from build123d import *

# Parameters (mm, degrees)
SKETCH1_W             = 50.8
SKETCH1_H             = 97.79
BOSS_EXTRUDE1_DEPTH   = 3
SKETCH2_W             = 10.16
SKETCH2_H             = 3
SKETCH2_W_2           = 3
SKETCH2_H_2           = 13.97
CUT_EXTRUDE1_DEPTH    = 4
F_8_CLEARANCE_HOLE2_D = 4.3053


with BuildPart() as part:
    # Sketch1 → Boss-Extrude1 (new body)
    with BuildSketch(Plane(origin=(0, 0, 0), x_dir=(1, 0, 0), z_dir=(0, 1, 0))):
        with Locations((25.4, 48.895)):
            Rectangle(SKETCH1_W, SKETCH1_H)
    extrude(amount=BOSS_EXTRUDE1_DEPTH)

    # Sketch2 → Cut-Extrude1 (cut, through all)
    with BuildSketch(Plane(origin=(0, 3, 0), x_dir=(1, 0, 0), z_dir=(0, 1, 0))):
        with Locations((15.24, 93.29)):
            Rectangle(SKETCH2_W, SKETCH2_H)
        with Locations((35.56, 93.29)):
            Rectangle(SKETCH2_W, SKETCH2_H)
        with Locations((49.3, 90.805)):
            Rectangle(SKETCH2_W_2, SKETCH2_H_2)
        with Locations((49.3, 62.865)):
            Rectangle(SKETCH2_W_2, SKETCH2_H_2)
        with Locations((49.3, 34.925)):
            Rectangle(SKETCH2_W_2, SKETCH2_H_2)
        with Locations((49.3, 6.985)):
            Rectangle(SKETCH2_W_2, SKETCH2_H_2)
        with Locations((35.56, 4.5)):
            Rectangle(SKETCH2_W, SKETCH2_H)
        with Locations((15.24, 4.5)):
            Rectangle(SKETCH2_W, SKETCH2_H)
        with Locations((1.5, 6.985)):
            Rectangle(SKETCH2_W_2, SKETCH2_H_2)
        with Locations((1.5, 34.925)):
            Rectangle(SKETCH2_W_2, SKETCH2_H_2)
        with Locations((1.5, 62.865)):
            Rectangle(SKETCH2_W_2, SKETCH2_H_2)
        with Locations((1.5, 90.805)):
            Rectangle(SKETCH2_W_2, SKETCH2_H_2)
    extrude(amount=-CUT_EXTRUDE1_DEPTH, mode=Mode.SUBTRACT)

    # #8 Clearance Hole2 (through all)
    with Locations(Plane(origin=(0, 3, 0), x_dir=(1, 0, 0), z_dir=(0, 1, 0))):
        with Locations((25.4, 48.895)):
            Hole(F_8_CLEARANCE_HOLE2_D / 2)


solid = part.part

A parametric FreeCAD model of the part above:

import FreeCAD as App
import Part
import Sketcher
from FreeCAD import Vector
Q = App.Units.Quantity


def add_polygon(sketch, points):
    """Adds a closed chain of lines whose ends are joined by coincident constraints."""
    first, n = sketch.GeometryCount, len(points)
    for a, b in zip(points, points[1:] + points[:1]):
        sketch.addGeometry(Part.LineSegment(App.Vector(*a, 0), App.Vector(*b, 0)), False)
    for i in range(n):
        sketch.addConstraint(Sketcher.Constraint("Coincident", first + i, 2, first + (i + 1) % n, 1))

doc = App.newDocument("Part")
body = doc.addObject("PartDesign::Body", "Body")

# Sketch on XZ plane
sketch1 = body.newObject("Sketcher::SketchObject", "Sketch")
sketch1.AttachmentSupport = (doc.getObject("XZ_Plane"), [""])
sketch1.MapMode = "FlatFace"
add_polygon(sketch1, [(0, -98), (0, 0), (51, 0), (51, -98)])  # lines 0-3
sketch1.addConstraint([
    Sketcher.Constraint("Vertical", 0),
    Sketcher.Constraint("Horizontal", 1),
    Sketcher.Constraint("Vertical", 2),
    Sketcher.Constraint("Horizontal", 3),
    Sketcher.Constraint("Coincident", 0, 2, -1, 1),
    Sketcher.Constraint("DistanceX", 1, 1, 1, 2, Q("2 in")),
    Sketcher.Constraint("DistanceY", 0, 1, 0, 2, Q("3.85 in")),
])
pad1 = body.newObject("PartDesign::Pad", "Pad")
pad1.Profile = sketch1
pad1.Length = 3
pad1.Reversed = True

# Sketch on XZ plane
sketch2 = body.newObject("Sketcher::SketchObject", "Sketch001")
sketch2.AttachmentSupport = (doc.getObject("XZ_Plane"), [""])
sketch2.MapMode = "FlatFace"
sketch2.AttachmentOffset = App.Placement(Vector(0, 0, -3), App.Rotation())
add_polygon(sketch2, [(10.2, -94.8), (10.2, -91.8), (20.3, -91.8), (20.3, -94.8)])  # lines 0-3
add_polygon(sketch2, [(30.5, -94.8), (30.5, -91.8), (40.6, -91.8), (40.6, -94.8)])  # lines 4-7
add_polygon(sketch2, [(47.8, -97.8), (47.8, -83.8), (50.8, -83.8), (50.8, -97.8)])  # lines 8-11
add_polygon(sketch2, [(47.8, -69.8), (47.8, -55.9), (50.8, -55.9), (50.8, -69.8)])  # lines 12-15
add_polygon(sketch2, [(47.8, -41.9), (47.8, -27.9), (50.8, -27.9), (50.8, -41.9)])  # lines 16-19
add_polygon(sketch2, [(47.8, -14), (47.8, 0), (50.8, 0), (50.8, -14)])  # lines 20-23
add_polygon(sketch2, [(30.5, -6), (30.5, -3), (40.6, -3), (40.6, -6)])  # lines 24-27
add_polygon(sketch2, [(10.2, -6), (10.2, -3), (20.3, -3), (20.3, -6)])  # lines 28-31
add_polygon(sketch2, [(0, -14), (0, 0), (3, 0), (3, -14)])  # lines 32-35
add_polygon(sketch2, [(0, -41.9), (0, -27.9), (3, -27.9), (3, -41.9)])  # lines 36-39
add_polygon(sketch2, [(0, -69.8), (0, -55.9), (3, -55.9), (3, -69.8)])  # lines 40-43
add_polygon(sketch2, [(0, -97.8), (0, -83.8), (3, -83.8), (3, -97.8)])  # lines 44-47
sketch2.addConstraint([
    Sketcher.Constraint("Vertical", 0),
    Sketcher.Constraint("Horizontal", 1),
    Sketcher.Constraint("Vertical", 2),
    Sketcher.Constraint("Horizontal", 3),
    Sketcher.Constraint("Vertical", 4),
    Sketcher.Constraint("Horizontal", 5),
    Sketcher.Constraint("Vertical", 6),
    Sketcher.Constraint("Horizontal", 7),
    Sketcher.Constraint("Vertical", 8),
    Sketcher.Constraint("Horizontal", 9),
    Sketcher.Constraint("Vertical", 10),
    Sketcher.Constraint("Horizontal", 11),
    Sketcher.Constraint("Vertical", 12),
    Sketcher.Constraint("Horizontal", 13),
    Sketcher.Constraint("Vertical", 14),
    Sketcher.Constraint("Horizontal", 15),
    Sketcher.Constraint("Vertical", 16),
    Sketcher.Constraint("Horizontal", 17),
    Sketcher.Constraint("Vertical", 18),
    Sketcher.Constraint("Horizontal", 19),
    Sketcher.Constraint("Vertical", 20),
    Sketcher.Constraint("Horizontal", 21),
    Sketcher.Constraint("Vertical", 22),
    Sketcher.Constraint("Horizontal", 23),
    Sketcher.Constraint("Vertical", 24),
    Sketcher.Constraint("Horizontal", 25),
    Sketcher.Constraint("Vertical", 26),
    Sketcher.Constraint("Horizontal", 27),
    Sketcher.Constraint("Vertical", 28),
    Sketcher.Constraint("Horizontal", 29),
    Sketcher.Constraint("Vertical", 30),
    Sketcher.Constraint("Horizontal", 31),
    Sketcher.Constraint("Vertical", 32),
    Sketcher.Constraint("Horizontal", 33),
    Sketcher.Constraint("Vertical", 34),
    Sketcher.Constraint("Horizontal", 35),
    Sketcher.Constraint("Vertical", 36),
    Sketcher.Constraint("Horizontal", 37),
    Sketcher.Constraint("Vertical", 38),
    Sketcher.Constraint("Horizontal", 39),
    Sketcher.Constraint("Vertical", 40),
    Sketcher.Constraint("Horizontal", 41),
    Sketcher.Constraint("Vertical", 42),
    Sketcher.Constraint("Horizontal", 43),
    Sketcher.Constraint("Vertical", 44),
    Sketcher.Constraint("Horizontal", 45),
    Sketcher.Constraint("Vertical", 46),
    Sketcher.Constraint("Horizontal", 47),
    Sketcher.Constraint("Coincident", 32, 2, -1, 1),
    Sketcher.Constraint("PointOnObject", 20, 2, -1),
    Sketcher.Constraint("PointOnObject", 36, 2, -2),
    Sketcher.Constraint("PointOnObject", 40, 2, -2),
    Sketcher.Constraint("PointOnObject", 44, 2, -2),
    Sketcher.Constraint("Horizontal", 1, 2, 4, 2),
    Sketcher.Constraint("Horizontal", 3, 2, 6, 2),
    Sketcher.Constraint("Horizontal", 25, 2, 28, 2),
    Sketcher.Constraint("Horizontal", 27, 2, 30, 2),
    Sketcher.Constraint("Horizontal", 23, 2, 34, 2),
    Sketcher.Constraint("Horizontal", 17, 2, 36, 2),
    Sketcher.Constraint("Horizontal", 19, 2, 38, 2),
    Sketcher.Constraint("Horizontal", 13, 2, 40, 2),
    Sketcher.Constraint("Horizontal", 15, 2, 42, 2),
    Sketcher.Constraint("Horizontal", 9, 2, 44, 2),
    Sketcher.Constraint("Horizontal", 11, 2, 46, 2),
    Sketcher.Constraint("Vertical", 11, 2, 12, 2),
    Sketcher.Constraint("Vertical", 10, 2, 13, 2),
    Sketcher.Constraint("Vertical", 15, 2, 16, 2),
    Sketcher.Constraint("Vertical", 14, 2, 17, 2),
    Sketcher.Constraint("Vertical", 19, 2, 20, 2),
    Sketcher.Constraint("Vertical", 18, 2, 21, 2),
    Sketcher.Constraint("Vertical", 7, 2, 24, 2),
    Sketcher.Constraint("Vertical", 6, 2, 25, 2),
    Sketcher.Constraint("Vertical", 3, 2, 28, 2),
    Sketcher.Constraint("Vertical", 2, 2, 29, 2),
    Sketcher.Constraint("Vertical", 34, 2, 37, 2),
    Sketcher.Constraint("Vertical", 38, 2, 41, 2),
    Sketcher.Constraint("Vertical", 42, 2, 45, 2),
    Sketcher.Constraint("Equal", 3, 5),
    Sketcher.Constraint("Equal", 23, 33),
    Sketcher.Constraint("Equal", 47, 0),
    Sketcher.Constraint("Equal", 10, 12),
    Sketcher.Constraint("Equal", 14, 16),
    Sketcher.Constraint("Equal", 18, 20),
    Sketcher.Constraint("Equal", 6, 24),
    Sketcher.Constraint("DistanceX", 1, 1, 1, 2, Q("0.4 in")),
    Sketcher.Constraint("DistanceX", -1, 1, 9, 2, Q("2 in")),
    Sketcher.Constraint("DistanceY", 8, 1, 8, 2, Q("0.55 in")),
    Sketcher.Constraint("DistanceX", -1, 1, 0, 2, Q("0.4 in")),
    Sketcher.Constraint("DistanceX", -1, 1, 4, 2, Q("1.2 in")),
    Sketcher.Constraint("DistanceY", 8, 2, -1, 1, Q("3.3 in")),
    Sketcher.Constraint("DistanceY", 12, 2, -1, 1, Q("2.2 in")),
    Sketcher.Constraint("DistanceY", 16, 2, -1, 1, Q("1.1 in")),
    Sketcher.Constraint("DistanceX", 9, 1, 9, 2, 3.0),
    Sketcher.Constraint("DistanceY", 0, 2, -1, 1, 91.79),
    Sketcher.Constraint("DistanceY", 24, 2, -1, 1, 3.0),
])
pocket1 = body.newObject("PartDesign::Pocket", "Pocket")
pocket1.Profile = sketch2
pocket1.Type = "ThroughAll"
pocket1.Reversed = True

# Sketch on XZ plane
sketch3 = body.newObject("Sketcher::SketchObject", "Sketch002")
sketch3.AttachmentSupport = (doc.getObject("XZ_Plane"), [""])
sketch3.MapMode = "FlatFace"
sketch3.AttachmentOffset = App.Placement(Vector(0, 0, -3), App.Rotation())
sketch3.addGeometry(Part.Circle(Vector(25.4, -48.9, 0), Vector(0, 0, 1), 2.2), False)
sketch3.addConstraint([
    Sketcher.Constraint("DistanceX", -1, 1, 0, 3, Q("1 in")),
    Sketcher.Constraint("Diameter", 0, Q("0.1695 in")),
    Sketcher.Constraint("DistanceY", 0, 3, -1, 1, Q("1.925 in")),
])
doc.recompute()
hole = body.newObject("PartDesign::Hole", "Hole")
hole.Profile = sketch3
hole.ThreadType = "None"
hole.Diameter = Q("0.1695 in")
hole.DepthType = "ThroughAll"
hole.Reversed = True

doc.recompute()
